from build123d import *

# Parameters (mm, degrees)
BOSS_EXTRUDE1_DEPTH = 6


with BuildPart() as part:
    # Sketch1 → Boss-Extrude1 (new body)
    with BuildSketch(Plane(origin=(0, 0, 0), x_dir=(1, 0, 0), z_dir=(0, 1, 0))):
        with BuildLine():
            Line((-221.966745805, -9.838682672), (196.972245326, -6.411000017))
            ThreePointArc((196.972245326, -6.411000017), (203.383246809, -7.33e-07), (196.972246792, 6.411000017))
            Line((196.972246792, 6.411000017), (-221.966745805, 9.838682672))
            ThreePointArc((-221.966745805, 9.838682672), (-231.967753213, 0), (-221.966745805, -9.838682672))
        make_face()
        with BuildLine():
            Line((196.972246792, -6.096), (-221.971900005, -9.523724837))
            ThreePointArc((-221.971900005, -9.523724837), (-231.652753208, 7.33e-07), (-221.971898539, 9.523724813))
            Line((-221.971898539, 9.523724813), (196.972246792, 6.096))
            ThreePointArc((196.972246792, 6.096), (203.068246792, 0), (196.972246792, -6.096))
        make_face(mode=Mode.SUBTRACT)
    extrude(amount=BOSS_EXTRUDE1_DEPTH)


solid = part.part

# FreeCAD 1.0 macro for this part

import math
import FreeCAD as App
import Part
import Sketcher

V = App.Vector
Q = App.Units.Quantity

doc = App.newDocument("Part")
body = doc.addObject("PartDesign::Body", "Body")

# Sketch on XZ plane
sketch1 = body.newObject("Sketcher::SketchObject", "Sketch")
sketch1.AttachmentSupport = (doc.getObject("XZ_Plane"), [""])
sketch1.MapMode = "FlatFace"
sketch1.addGeometry([
    Part.LineSegment(V(-222, 10, 0), V(197, 6, 0)),  # 0
    Part.ArcOfCircle(Part.Circle(V(197, 0, 0), V(0, 0, 1), 6), math.radians(-90), math.radians(90)),  # 1
    Part.LineSegment(V(197, -6, 0), V(-222, -10, 0)),  # 2
    Part.ArcOfCircle(Part.Circle(V(-222, 0, 0), V(0, 0, 1), 10), math.radians(89), math.radians(271)),  # 3
    Part.ArcOfCircle(Part.Circle(V(197, 0, 0), V(0, 0, 1), 6), math.radians(-90), math.radians(90)),  # 4
    Part.LineSegment(V(197, 6, 0), V(-222, 10, 0)),  # 5
    Part.ArcOfCircle(Part.Circle(V(-222, 0, 0), V(0, 0, 1), 10), math.radians(89), math.radians(271)),  # 6
    Part.LineSegment(V(-222, -10, 0), V(197, -6, 0)),  # 7
], False)
sketch1.addConstraint([
    Sketcher.Constraint("Coincident", 0, 2, 1, 2),
    Sketcher.Constraint("Coincident", 1, 1, 2, 1),
    Sketcher.Constraint("Coincident", 2, 2, 3, 2),
    Sketcher.Constraint("Coincident", 3, 1, 0, 1),
    Sketcher.Constraint("Coincident", 4, 2, 5, 1),
    Sketcher.Constraint("Coincident", 5, 2, 6, 1),
    Sketcher.Constraint("Coincident", 6, 2, 7, 1),
    Sketcher.Constraint("Coincident", 7, 2, 4, 1),
    Sketcher.Constraint("Coincident", 4, 3, 1, 3),
    Sketcher.Constraint("Coincident", 6, 3, 3, 3),
    Sketcher.Constraint("Symmetric", 0, 2, 1, 1, -1),
    Sketcher.Constraint("Symmetric", 2, 2, 3, 1, -1),
    Sketcher.Constraint("Parallel", 0, 5),
    Sketcher.Constraint("Parallel", 2, 7),
    Sketcher.Constraint("Vertical", 4, 3, 0, 2),
    Sketcher.Constraint("Vertical", 1, 1, 4, 2),
    Sketcher.Constraint("Vertical", 5, 2, 6, 2),
    Sketcher.Constraint("Radius", 4, Q("0.24 in")),
    Sketcher.Constraint("Radius", 6, Q("0.375 in")),
    Sketcher.Constraint("DistanceX", 3, 3, 1, 3, Q("16.5 in")),
    Sketcher.Constraint("Radius", 1, Q("6.411 mm")),
    Sketcher.Constraint("Radius", 3, Q("9.84 mm")),
    Sketcher.Constraint("DistanceX", 5, 2, -1, 1, Q("221.9719 mm")),
    Sketcher.Constraint("Distance", 5, Q("418.958169 mm")),
])
pad1 = body.newObject("PartDesign::Pad", "Pad")
pad1.Profile = sketch1
pad1.Length = 6
pad1.Reversed = True

doc.recompute()
